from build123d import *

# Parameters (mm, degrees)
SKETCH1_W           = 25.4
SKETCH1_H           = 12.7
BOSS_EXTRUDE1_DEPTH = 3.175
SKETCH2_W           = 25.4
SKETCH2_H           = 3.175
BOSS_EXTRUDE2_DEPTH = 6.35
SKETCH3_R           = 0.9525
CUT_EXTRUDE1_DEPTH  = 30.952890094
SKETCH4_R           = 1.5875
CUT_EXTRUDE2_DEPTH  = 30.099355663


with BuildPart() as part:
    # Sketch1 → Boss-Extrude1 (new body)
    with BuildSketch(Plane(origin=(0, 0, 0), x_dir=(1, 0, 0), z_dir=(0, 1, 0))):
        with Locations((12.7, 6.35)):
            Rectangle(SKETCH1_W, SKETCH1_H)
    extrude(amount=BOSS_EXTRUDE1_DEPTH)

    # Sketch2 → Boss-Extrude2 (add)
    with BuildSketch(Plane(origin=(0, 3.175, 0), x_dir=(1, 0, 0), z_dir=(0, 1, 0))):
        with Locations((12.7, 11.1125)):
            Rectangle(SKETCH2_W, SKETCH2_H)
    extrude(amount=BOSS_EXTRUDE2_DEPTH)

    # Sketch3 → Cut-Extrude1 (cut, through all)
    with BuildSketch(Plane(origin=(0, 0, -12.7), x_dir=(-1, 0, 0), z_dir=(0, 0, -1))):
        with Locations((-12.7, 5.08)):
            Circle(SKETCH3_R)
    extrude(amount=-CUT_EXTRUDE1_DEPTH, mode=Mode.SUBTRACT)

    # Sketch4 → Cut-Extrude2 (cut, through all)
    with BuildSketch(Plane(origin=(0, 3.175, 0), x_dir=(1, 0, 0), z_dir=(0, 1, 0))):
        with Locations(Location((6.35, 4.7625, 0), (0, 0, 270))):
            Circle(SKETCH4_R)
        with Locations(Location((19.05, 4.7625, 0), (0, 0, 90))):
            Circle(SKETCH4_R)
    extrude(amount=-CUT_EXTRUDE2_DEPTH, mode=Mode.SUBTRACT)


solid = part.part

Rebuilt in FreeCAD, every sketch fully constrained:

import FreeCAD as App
import Part
import Sketcher
from FreeCAD import Vector
Q = App.Units.Quantity

doc = App.newDocument("Part")
body = doc.addObject("PartDesign::Body", "Body")

sketch1 = body.newObject("Sketcher::SketchObject", "Sketch")
sketch1.AttachmentSupport = (doc.getObject("XZ_Plane"), [""])
sketch1.MapMode = "FlatFace"
sketch1.addGeometry(Part.LineSegment(Vector(0, -13, 0), Vector(0, 0, 0)), False)
sketch1.addGeometry(Part.LineSegment(Vector(0, 0, 0), Vector(25, 0, 0)), False)
sketch1.addGeometry(Part.LineSegment(Vector(25, 0, 0), Vector(25, -13, 0)), False)
sketch1.addGeometry(Part.LineSegment(Vector(25, -13, 0), Vector(0, -13, 0)), False)
sketch1.addConstraint(Sketcher.Constraint("Coincident", 0, 2, 1, 1))
sketch1.addConstraint(Sketcher.Constraint("Coincident", 1, 2, 2, 1))
sketch1.addConstraint(Sketcher.Constraint("Coincident", 2, 2, 3, 1))
sketch1.addConstraint(Sketcher.Constraint("Coincident", 3, 2, 0, 1))
sketch1.addConstraint(Sketcher.Constraint("Vertical", 0))
sketch1.addConstraint(Sketcher.Constraint("Horizontal", 1))
sketch1.addConstraint(Sketcher.Constraint("Vertical", 2))
sketch1.addConstraint(Sketcher.Constraint("Horizontal", 3))
sketch1.addConstraint(Sketcher.Constraint("Coincident", 0, 2, -1, 1))
sketch1.addConstraint(Sketcher.Constraint("DistanceX", 1, 1, 1, 2, Q("1 in")))
sketch1.addConstraint(Sketcher.Constraint("DistanceY", 0, 1, 0, 2, Q("0.5 in")))
pad1 = body.newObject("PartDesign::Pad", "Pad")
pad1.Profile = sketch1
pad1.Length = Q("0.125 in")
pad1.Reversed = True

sketch2 = body.newObject("Sketcher::SketchObject", "Sketch001")
sketch2.AttachmentSupport = (doc.getObject("XZ_Plane"), [""])
sketch2.MapMode = "FlatFace"
sketch2.AttachmentOffset = App.Placement(Vector(0, 0, -0.125 * 25.4), App.Rotation())
sketch2.addGeometry(Part.LineSegment(Vector(0, -12.7, 0), Vector(0, -9.5, 0)), False)
sketch2.addGeometry(Part.LineSegment(Vector(0, -9.5, 0), Vector(25.4, -9.5, 0)), False)
sketch2.addGeometry(Part.LineSegment(Vector(25.4, -9.5, 0), Vector(25.4, -12.7, 0)), False)
sketch2.addGeometry(Part.LineSegment(Vector(25.4, -12.7, 0), Vector(0, -12.7, 0)), False)
sketch2.addConstraint(Sketcher.Constraint("Coincident", 0, 2, 1, 1))
sketch2.addConstraint(Sketcher.Constraint("Coincident", 1, 2, 2, 1))
sketch2.addConstraint(Sketcher.Constraint("Coincident", 2, 2, 3, 1))
sketch2.addConstraint(Sketcher.Constraint("Coincident", 3, 2, 0, 1))
sketch2.addConstraint(Sketcher.Constraint("Vertical", 0))
sketch2.addConstraint(Sketcher.Constraint("Horizontal", 1))
sketch2.addConstraint(Sketcher.Constraint("Vertical", 2))
sketch2.addConstraint(Sketcher.Constraint("Horizontal", 3))
sketch2.addConstraint(Sketcher.Constraint("PointOnObject", 0, 2, -2))
sketch2.addConstraint(Sketcher.Constraint("DistanceX", 1, 1, 1, 2, Q("1 in")))
sketch2.addConstraint(Sketcher.Constraint("DistanceY", 2, 2, -1, 1, Q("0.5 in")))
sketch2.addConstraint(Sketcher.Constraint("DistanceY", 0, 1, 0, 2, Q("0.125 in")))
pad2 = body.newObject("PartDesign::Pad", "Pad001")
pad2.Profile = sketch2
pad2.Length = Q("0.25 in")
pad2.Reversed = True

sketch3 = body.newObject("Sketcher::SketchObject", "Sketch002")
sketch3.AttachmentSupport = (doc.getObject("XY_Plane"), [""])
sketch3.MapMode = "FlatFace"
sketch3.AttachmentOffset = App.Placement(Vector(0, 0, -0.5 * 25.4), App.Rotation())
sketch3.addGeometry(Part.Circle(Vector(12.7, 5.1, 0), Vector(0, 0, 1), 1), False)
sketch3.addConstraint(Sketcher.Constraint("Diameter", 0, Q("0.075 in")))
sketch3.addConstraint(Sketcher.Constraint("DistanceX", -1, 1, 0, 3, Q("0.5 in")))
sketch3.addConstraint(Sketcher.Constraint("DistanceY", -1, 1, 0, 3, Q("0.2 in")))
pocket1 = body.newObject("PartDesign::Pocket", "Pocket")
pocket1.Profile = sketch3
pocket1.Type = "ThroughAll"
pocket1.Reversed = True

sketch4 = body.newObject("Sketcher::SketchObject", "Sketch003")
sketch4.AttachmentSupport = (doc.getObject("XZ_Plane"), [""])
sketch4.MapMode = "FlatFace"
sketch4.AttachmentOffset = App.Placement(Vector(0, 0, -0.125 * 25.4), App.Rotation())
sketch4.addGeometry(Part.Circle(Vector(6.3, -4.8, 0), Vector(0, 0, 1), 1.6), False)
sketch4.addGeometry(Part.Circle(Vector(19.1, -4.8, 0), Vector(0, 0, 1), 1.6), False)
sketch4.addConstraint(Sketcher.Constraint("Equal", 0, 1))
sketch4.addConstraint(Sketcher.Constraint("Horizontal", 0, 3, 1, 3))
sketch4.addConstraint(Sketcher.Constraint("Diameter", 0, Q("0.125 in")))
sketch4.addConstraint(Sketcher.Constraint("DistanceX", 0, 3, 1, 3, Q("0.5 in")))
sketch4.addConstraint(Sketcher.Constraint("DistanceX", -1, 1, 0, 3, Q("0.25 in")))
sketch4.addConstraint(Sketcher.Constraint("DistanceY", 0, 3, -1, 1, Q("0.1875 in")))
pocket2 = body.newObject("PartDesign::Pocket", "Pocket001")
pocket2.Profile = sketch4
pocket2.Type = "ThroughAll"
pocket2.Reversed = True

doc.recompute()
